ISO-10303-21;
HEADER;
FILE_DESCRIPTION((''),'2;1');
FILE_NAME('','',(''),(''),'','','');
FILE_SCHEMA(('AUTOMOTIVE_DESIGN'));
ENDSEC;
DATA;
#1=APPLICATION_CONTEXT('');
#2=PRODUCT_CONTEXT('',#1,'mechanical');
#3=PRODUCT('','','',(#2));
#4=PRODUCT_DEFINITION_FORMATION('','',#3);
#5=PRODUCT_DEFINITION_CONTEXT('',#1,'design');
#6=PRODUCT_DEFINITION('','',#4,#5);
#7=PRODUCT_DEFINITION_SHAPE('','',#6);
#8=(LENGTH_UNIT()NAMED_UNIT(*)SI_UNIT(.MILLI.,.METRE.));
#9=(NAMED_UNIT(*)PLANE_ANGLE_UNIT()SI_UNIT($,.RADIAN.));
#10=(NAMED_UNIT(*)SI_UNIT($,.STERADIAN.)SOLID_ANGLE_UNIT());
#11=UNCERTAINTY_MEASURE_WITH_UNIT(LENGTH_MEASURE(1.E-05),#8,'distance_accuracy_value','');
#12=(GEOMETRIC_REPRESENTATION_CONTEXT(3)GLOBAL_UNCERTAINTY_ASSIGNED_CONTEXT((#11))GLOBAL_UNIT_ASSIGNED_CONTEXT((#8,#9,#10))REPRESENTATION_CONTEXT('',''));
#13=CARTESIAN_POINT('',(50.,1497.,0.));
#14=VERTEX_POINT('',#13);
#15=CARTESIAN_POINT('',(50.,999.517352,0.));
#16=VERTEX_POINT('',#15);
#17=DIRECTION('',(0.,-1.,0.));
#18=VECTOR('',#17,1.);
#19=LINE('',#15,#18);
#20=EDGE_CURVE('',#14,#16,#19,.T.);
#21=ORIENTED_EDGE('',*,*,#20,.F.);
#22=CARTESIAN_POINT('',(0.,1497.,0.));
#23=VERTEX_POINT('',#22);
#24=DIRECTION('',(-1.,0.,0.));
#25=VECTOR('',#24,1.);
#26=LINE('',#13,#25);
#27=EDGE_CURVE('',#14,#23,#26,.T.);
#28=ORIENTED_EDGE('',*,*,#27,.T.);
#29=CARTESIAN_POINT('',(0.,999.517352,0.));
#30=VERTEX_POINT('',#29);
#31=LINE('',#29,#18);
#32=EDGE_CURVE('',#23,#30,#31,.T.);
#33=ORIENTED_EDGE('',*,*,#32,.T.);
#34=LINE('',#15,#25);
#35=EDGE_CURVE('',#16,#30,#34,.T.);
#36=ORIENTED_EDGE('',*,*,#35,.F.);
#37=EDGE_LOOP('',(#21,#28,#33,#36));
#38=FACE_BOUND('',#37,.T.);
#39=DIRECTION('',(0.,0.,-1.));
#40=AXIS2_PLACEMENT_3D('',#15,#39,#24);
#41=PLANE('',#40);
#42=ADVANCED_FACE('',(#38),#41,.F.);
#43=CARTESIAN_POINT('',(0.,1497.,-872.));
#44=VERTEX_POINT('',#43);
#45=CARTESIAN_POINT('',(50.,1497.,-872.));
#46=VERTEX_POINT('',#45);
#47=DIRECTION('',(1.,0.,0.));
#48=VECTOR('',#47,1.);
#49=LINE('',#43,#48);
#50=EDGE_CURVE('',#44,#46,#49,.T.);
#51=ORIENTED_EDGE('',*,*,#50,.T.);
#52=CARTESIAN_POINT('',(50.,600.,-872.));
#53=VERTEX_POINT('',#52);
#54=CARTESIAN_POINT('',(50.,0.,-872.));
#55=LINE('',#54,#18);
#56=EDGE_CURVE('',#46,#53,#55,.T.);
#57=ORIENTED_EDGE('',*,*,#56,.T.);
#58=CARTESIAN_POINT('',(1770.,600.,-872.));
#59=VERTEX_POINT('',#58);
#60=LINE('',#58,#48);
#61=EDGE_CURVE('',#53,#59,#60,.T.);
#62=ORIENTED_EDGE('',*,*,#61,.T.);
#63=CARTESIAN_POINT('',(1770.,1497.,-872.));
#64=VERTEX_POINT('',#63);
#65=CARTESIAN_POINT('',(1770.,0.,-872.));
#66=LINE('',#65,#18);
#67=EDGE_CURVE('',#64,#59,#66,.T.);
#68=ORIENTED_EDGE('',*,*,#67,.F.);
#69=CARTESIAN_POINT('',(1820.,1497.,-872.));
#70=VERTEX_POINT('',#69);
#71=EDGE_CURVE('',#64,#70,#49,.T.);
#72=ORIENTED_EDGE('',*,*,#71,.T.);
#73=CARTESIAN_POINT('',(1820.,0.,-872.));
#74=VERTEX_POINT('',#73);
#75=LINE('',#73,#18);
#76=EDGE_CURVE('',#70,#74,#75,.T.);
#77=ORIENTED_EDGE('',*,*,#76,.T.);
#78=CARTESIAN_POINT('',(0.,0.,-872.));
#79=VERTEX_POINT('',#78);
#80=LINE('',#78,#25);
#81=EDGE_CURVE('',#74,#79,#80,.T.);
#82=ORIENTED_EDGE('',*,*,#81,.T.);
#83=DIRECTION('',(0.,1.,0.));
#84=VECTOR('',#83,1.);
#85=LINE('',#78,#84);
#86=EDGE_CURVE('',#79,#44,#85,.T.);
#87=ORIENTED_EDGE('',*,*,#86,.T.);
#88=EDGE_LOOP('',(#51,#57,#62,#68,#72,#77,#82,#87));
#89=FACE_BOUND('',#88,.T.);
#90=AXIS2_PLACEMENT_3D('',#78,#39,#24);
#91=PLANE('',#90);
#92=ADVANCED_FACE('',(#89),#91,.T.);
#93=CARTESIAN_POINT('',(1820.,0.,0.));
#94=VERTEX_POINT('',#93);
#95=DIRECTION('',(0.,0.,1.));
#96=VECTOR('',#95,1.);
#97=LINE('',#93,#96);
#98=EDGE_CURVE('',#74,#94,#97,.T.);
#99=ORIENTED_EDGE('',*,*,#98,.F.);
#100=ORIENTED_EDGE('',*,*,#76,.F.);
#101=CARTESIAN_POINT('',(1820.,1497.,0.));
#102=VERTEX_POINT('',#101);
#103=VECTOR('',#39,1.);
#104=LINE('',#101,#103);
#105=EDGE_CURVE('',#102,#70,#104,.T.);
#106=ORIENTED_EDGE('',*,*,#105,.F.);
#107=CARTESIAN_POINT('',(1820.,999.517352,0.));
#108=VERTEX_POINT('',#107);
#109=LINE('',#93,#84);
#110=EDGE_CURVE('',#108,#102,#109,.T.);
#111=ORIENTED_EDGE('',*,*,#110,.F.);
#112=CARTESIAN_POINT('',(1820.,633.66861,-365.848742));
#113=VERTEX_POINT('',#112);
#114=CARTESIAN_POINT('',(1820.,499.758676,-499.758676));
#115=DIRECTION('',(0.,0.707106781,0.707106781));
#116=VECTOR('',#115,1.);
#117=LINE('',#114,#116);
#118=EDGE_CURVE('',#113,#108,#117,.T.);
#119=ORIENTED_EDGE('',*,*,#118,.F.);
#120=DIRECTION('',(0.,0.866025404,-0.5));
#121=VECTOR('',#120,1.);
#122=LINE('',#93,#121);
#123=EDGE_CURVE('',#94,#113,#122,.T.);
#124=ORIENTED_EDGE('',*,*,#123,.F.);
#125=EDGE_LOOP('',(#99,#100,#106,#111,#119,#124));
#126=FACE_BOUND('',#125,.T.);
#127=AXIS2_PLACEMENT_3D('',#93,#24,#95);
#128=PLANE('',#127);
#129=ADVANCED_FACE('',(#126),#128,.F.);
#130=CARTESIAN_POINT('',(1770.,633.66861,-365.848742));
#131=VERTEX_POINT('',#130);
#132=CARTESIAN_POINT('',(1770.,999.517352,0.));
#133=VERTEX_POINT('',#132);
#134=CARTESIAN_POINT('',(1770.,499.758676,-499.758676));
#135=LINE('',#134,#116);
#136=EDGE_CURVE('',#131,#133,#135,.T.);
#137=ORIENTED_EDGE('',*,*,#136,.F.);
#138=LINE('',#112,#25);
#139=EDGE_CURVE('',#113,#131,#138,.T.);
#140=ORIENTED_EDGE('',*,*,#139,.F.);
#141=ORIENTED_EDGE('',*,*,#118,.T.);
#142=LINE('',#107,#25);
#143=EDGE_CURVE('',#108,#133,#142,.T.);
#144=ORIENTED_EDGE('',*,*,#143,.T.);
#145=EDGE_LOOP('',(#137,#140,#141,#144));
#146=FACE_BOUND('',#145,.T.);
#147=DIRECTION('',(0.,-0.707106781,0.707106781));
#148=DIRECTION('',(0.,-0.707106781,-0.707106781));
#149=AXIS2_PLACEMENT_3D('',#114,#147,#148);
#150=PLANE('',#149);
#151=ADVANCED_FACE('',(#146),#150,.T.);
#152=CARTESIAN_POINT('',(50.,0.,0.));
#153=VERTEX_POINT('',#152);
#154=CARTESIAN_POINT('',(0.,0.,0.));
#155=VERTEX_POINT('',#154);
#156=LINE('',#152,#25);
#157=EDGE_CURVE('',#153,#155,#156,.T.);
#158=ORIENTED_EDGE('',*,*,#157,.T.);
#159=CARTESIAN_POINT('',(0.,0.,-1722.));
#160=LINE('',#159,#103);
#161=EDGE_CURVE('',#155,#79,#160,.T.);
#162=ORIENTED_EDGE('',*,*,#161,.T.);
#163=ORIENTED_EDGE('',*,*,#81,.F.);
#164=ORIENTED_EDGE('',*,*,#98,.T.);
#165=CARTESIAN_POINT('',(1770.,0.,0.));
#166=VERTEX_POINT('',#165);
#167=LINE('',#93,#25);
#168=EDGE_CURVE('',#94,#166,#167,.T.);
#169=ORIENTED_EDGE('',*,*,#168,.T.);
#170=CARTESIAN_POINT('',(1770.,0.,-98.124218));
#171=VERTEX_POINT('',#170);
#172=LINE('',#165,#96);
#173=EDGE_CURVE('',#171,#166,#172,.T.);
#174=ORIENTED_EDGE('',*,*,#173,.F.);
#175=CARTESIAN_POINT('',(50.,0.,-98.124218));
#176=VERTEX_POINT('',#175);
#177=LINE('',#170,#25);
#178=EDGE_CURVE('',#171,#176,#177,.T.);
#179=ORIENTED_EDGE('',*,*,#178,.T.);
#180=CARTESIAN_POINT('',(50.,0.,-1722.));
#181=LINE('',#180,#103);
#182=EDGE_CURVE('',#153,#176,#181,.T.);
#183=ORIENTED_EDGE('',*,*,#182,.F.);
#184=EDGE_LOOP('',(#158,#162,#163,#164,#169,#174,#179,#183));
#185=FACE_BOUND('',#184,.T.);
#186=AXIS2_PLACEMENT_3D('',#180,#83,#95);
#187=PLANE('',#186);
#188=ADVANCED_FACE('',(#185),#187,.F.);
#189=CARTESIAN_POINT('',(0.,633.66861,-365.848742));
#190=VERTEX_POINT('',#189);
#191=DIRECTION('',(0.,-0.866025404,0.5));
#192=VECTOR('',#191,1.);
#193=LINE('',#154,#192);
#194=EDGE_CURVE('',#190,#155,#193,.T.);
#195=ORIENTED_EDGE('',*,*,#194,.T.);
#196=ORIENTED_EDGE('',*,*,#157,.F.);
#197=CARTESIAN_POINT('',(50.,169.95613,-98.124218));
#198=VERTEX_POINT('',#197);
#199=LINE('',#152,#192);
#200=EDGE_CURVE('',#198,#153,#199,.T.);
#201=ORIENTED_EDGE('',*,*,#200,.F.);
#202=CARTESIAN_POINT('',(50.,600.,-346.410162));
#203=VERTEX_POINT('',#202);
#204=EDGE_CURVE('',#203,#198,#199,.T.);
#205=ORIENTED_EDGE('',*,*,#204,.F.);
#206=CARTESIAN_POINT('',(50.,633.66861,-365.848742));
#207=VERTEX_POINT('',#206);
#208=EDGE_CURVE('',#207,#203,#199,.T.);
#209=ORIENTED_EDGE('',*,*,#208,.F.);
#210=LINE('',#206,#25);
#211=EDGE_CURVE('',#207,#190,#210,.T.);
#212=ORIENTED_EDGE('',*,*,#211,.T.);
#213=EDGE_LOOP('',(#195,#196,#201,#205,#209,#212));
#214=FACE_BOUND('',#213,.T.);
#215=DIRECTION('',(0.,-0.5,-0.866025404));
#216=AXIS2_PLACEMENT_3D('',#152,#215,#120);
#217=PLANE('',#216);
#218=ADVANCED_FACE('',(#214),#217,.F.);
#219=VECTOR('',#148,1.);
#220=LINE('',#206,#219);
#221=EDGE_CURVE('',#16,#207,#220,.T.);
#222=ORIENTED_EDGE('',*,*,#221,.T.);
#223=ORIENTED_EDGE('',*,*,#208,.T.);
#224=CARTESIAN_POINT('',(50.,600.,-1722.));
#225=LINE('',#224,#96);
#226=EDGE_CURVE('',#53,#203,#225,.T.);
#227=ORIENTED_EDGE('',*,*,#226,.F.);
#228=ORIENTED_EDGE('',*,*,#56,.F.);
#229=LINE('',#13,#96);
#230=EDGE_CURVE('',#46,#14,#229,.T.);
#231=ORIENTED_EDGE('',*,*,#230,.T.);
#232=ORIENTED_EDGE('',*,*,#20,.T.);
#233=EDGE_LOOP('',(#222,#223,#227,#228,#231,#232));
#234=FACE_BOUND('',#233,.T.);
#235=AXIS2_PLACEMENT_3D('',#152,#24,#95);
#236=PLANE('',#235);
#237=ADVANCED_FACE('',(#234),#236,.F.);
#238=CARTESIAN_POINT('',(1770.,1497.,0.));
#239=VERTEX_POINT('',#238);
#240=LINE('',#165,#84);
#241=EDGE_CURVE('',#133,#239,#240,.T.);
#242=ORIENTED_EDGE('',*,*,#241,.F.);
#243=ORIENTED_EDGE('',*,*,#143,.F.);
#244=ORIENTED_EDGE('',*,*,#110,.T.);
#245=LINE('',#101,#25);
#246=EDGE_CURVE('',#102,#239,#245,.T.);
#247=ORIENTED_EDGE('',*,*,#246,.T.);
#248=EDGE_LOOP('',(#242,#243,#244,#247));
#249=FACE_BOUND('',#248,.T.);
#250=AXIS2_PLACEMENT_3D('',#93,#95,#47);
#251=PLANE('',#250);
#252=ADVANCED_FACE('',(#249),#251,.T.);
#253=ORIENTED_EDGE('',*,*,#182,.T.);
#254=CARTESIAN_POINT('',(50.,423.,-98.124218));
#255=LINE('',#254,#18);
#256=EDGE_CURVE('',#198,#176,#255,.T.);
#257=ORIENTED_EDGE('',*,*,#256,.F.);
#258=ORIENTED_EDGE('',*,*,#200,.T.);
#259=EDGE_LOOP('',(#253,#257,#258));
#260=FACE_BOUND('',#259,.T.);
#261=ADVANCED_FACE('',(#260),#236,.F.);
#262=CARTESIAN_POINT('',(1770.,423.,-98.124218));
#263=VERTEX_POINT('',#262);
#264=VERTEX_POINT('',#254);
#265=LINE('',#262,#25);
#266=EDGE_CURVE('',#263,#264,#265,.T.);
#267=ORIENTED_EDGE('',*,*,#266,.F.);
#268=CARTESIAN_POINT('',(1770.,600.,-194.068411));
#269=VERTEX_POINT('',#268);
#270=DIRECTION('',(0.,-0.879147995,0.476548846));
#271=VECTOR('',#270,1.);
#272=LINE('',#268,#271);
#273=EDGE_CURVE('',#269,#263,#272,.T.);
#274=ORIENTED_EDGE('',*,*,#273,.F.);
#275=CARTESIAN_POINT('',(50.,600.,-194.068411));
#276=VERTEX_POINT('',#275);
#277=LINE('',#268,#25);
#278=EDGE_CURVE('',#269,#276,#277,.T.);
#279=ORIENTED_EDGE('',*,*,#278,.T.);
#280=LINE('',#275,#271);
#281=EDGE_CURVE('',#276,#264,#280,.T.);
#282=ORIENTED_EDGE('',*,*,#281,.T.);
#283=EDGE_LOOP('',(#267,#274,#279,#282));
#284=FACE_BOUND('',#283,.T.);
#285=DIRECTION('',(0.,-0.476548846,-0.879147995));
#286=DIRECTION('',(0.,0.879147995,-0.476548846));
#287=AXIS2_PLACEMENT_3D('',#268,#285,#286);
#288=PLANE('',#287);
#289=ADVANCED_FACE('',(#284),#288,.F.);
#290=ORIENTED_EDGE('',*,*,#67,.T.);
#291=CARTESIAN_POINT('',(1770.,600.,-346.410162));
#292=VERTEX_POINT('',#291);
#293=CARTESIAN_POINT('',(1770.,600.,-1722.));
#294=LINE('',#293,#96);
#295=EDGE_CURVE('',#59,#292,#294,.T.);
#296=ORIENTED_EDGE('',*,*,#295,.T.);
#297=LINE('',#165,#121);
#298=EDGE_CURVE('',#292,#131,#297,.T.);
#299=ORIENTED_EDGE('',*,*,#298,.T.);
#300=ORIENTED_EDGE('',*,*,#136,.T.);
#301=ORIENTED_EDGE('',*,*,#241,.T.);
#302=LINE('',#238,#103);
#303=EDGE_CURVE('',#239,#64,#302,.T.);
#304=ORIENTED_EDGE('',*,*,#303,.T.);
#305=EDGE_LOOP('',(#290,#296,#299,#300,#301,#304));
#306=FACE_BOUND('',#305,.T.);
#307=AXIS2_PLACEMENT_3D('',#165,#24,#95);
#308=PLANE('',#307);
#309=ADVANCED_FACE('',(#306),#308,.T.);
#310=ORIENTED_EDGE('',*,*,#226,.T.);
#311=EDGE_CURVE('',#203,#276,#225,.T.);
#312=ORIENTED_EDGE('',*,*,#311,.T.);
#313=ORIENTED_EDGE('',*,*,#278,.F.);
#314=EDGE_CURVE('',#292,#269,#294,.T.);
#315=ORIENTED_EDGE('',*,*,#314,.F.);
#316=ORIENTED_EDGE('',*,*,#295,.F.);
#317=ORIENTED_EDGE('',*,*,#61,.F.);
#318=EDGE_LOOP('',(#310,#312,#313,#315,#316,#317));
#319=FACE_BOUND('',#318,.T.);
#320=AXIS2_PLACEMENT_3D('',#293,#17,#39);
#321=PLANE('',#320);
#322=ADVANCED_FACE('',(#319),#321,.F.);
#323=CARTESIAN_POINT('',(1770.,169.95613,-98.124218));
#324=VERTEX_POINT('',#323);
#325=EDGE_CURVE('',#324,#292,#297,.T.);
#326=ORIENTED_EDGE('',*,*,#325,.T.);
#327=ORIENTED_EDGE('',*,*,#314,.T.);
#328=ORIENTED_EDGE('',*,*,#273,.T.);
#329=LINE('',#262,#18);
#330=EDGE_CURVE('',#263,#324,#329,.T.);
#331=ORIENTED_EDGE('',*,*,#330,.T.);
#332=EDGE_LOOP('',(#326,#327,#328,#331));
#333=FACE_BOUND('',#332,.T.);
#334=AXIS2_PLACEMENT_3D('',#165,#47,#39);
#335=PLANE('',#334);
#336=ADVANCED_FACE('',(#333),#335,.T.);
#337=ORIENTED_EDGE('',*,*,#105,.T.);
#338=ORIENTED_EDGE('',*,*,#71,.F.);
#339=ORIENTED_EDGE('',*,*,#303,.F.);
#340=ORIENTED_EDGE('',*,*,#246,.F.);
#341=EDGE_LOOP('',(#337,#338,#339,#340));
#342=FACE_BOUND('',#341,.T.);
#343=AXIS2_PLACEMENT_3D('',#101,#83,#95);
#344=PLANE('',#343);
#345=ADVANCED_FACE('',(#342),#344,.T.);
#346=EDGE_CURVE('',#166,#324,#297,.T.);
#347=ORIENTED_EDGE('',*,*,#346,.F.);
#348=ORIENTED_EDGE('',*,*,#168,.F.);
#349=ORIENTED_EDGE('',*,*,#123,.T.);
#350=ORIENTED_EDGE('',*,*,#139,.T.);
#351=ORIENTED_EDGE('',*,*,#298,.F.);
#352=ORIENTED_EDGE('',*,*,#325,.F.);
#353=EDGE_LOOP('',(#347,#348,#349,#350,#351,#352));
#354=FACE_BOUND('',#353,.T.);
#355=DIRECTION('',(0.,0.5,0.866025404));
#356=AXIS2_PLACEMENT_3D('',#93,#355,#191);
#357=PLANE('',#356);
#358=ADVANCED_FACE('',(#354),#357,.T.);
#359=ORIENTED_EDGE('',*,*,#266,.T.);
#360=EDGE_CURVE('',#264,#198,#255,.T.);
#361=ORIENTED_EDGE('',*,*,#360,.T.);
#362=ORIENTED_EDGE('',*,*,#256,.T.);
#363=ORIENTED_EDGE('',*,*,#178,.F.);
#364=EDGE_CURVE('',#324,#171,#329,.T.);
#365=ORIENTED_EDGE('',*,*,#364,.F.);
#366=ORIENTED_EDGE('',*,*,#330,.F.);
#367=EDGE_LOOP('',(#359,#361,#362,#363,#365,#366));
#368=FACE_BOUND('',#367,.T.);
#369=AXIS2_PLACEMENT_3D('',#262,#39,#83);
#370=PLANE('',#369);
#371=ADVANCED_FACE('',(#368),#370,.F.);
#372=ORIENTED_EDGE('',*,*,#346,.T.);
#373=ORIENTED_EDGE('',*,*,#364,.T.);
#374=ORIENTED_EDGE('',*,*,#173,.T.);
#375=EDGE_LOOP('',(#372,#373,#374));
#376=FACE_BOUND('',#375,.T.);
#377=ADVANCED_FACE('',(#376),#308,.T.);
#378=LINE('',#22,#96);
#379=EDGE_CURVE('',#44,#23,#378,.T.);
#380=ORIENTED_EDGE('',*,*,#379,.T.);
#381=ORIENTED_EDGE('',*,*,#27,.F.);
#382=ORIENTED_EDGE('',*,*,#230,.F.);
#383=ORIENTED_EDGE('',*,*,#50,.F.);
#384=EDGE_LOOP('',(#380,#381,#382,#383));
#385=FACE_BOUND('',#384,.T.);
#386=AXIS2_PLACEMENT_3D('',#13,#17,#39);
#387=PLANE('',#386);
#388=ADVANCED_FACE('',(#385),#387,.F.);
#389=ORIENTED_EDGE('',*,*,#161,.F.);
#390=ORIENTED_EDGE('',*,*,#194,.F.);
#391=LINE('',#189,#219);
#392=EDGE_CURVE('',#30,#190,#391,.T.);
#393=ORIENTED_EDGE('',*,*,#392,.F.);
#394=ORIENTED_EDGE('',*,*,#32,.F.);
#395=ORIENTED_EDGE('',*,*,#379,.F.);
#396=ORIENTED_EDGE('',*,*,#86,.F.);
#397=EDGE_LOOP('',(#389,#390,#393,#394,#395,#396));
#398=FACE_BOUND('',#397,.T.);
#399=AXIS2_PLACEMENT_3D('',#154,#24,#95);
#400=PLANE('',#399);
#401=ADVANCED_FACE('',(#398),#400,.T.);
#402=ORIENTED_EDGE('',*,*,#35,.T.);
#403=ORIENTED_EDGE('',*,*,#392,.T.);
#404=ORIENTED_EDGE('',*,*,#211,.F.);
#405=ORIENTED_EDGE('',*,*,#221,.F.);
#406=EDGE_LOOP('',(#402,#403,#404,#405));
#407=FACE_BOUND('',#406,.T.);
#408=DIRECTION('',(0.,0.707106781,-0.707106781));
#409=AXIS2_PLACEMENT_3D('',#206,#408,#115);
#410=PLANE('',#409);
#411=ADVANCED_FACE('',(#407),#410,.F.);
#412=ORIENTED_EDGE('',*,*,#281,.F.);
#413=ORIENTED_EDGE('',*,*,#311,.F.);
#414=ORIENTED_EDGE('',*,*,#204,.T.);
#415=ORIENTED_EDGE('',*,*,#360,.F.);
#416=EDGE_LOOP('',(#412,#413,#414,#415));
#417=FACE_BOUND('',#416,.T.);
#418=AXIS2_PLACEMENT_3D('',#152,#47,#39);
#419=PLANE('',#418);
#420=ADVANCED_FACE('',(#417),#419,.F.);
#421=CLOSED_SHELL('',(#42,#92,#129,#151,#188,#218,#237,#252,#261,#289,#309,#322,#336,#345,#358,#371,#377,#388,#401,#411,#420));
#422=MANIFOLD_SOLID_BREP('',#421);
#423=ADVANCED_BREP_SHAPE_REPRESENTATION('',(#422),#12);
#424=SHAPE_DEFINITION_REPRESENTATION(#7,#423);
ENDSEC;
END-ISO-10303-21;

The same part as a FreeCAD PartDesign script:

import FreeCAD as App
import Part
import Sketcher

V = App.Vector
Q = App.Units.Quantity


def add_polygon(sketch, points):
    """Adds a closed chain of lines whose ends are joined by coincident constraints."""
    first, n = sketch.GeometryCount, len(points)
    for a, b in zip(points, points[1:] + points[:1]):
        sketch.addGeometry(Part.LineSegment(App.Vector(*a, 0), App.Vector(*b, 0)), False)
    for i in range(n):
        sketch.addConstraint(Sketcher.Constraint("Coincident", first + i, 2, first + (i + 1) % n, 1))

doc = App.newDocument("Part")
body = doc.addObject("PartDesign::Body", "Body")

sketch1 = body.newObject("Sketcher::SketchObject", "Sketch")
sketch1.AttachmentSupport = (doc.getObject("YZ_Plane"), [""])
sketch1.MapMode = "FlatFace"
add_polygon(sketch1, [(634, -366), (0, 0), (0, -1722), (1497, -1722), (1497, 0), (1000, 0)])
sketch1.addConstraint([
    Sketcher.Constraint("Vertical", 1),
    Sketcher.Constraint("Horizontal", 2),
    Sketcher.Constraint("Vertical", 3),
    Sketcher.Constraint("Horizontal", 4),
    Sketcher.Constraint("Coincident", 0, 2, -1, 1),
    Sketcher.Constraint("PointOnObject", 3, 2, -1),
    Sketcher.Constraint("DistanceX", 2, 1, 2, 2, 1497.0),
    Sketcher.Constraint("DistanceY", 1, 2, 1, 1, 1722.0),
    Sketcher.Constraint("Angle", 0, Q("150 deg")),
    Sketcher.Constraint("Angle", 5, Q("-135 deg")),
    Sketcher.Constraint("DistanceX", 4, 2, 4, 1, 497.482648),
])
pad1 = body.newObject("PartDesign::Pad", "Pad")
pad1.Profile = sketch1
pad1.Length = 50

sketch2 = body.newObject("Sketcher::SketchObject", "Sketch001")
sketch2.AttachmentSupport = (doc.getObject("YZ_Plane"), [""])
sketch2.MapMode = "FlatFace"
sketch2.AttachmentOffset = App.Placement(V(0, 0, 50), App.Rotation())
add_polygon(sketch2, [(600, -1722), (600, -194), (423, -98), (0, -98), (0, -1722)])
sketch2.addConstraint([
    Sketcher.Constraint("Vertical", 0),
    Sketcher.Constraint("Horizontal", 2),
    Sketcher.Constraint("Vertical", 3),
    Sketcher.Constraint("Horizontal", 4),
    Sketcher.Constraint("PointOnObject", 2, 2, -2),
    Sketcher.Constraint("DistanceX", 2, 2, 2, 1, 423.0),
    Sketcher.Constraint("DistanceX", 4, 1, 4, 2, 600.0),
    Sketcher.Constraint("DistanceY", 3, 2, -1, 1, 1722.0),
    Sketcher.Constraint("DistanceY", 0, 1, 0, 2, 1527.931589),
    Sketcher.Constraint("Distance", 1, 201.33129),
])
pad2 = body.newObject("PartDesign::Pad", "Pad001")
pad2.Profile = sketch2
pad2.Length = 1720

sketch3 = body.newObject("Sketcher::SketchObject", "Sketch002")
sketch3.AttachmentSupport = (doc.getObject("YZ_Plane"), [""])
sketch3.MapMode = "FlatFace"
sketch3.AttachmentOffset = App.Placement(V(0, 0, 1770), App.Rotation())
add_polygon(sketch3, [(634, -366), (0, 0), (0, -1722), (1497, -1722), (1497, 0), (1000, 0)])
sketch3.addConstraint([
    Sketcher.Constraint("Vertical", 1),
    Sketcher.Constraint("Horizontal", 2),
    Sketcher.Constraint("Vertical", 3),
    Sketcher.Constraint("Horizontal", 4),
    Sketcher.Constraint("Coincident", 0, 2, -1, 1),
    Sketcher.Constraint("PointOnObject", 3, 2, -1),
    Sketcher.Constraint("DistanceX", 2, 1, 2, 2, 1497.0),
    Sketcher.Constraint("DistanceY", 1, 2, 1, 1, 1722.0),
    Sketcher.Constraint("Angle", 0, Q("150 deg")),
    Sketcher.Constraint("Angle", 5, Q("-135 deg")),
    Sketcher.Constraint("DistanceX", 4, 2, 4, 1, 497.482648),
])
pad3 = body.newObject("PartDesign::Pad", "Pad002")
pad3.Profile = sketch3
pad3.Length = 50

sketch4 = body.newObject("Sketcher::SketchObject", "Sketch003")
sketch4.AttachmentSupport = (doc.getObject("XY_Plane"), [""])
sketch4.MapMode = "FlatFace"
sketch4.AttachmentOffset = App.Placement(V(0, 0, -1722), App.Rotation())
add_polygon(sketch4, [(1820, 1497), (1820, 0), (0, 0), (0, 1497)])
sketch4.addConstraint([
    Sketcher.Constraint("Vertical", 0),
    Sketcher.Constraint("Horizontal", 1),
    Sketcher.Constraint("Vertical", 2),
    Sketcher.Constraint("Horizontal", 3),
    Sketcher.Constraint("Coincident", 1, 2, -1, 1),
    Sketcher.Constraint("DistanceX", 1, 2, 1, 1, 1820.0),
    Sketcher.Constraint("DistanceY", 0, 2, 0, 1, 1497.0),
])
pocket1 = body.newObject("PartDesign::Pocket", "Pocket")
pocket1.Profile = sketch4
pocket1.Length = 850
pocket1.Reversed = True

doc.recompute()
